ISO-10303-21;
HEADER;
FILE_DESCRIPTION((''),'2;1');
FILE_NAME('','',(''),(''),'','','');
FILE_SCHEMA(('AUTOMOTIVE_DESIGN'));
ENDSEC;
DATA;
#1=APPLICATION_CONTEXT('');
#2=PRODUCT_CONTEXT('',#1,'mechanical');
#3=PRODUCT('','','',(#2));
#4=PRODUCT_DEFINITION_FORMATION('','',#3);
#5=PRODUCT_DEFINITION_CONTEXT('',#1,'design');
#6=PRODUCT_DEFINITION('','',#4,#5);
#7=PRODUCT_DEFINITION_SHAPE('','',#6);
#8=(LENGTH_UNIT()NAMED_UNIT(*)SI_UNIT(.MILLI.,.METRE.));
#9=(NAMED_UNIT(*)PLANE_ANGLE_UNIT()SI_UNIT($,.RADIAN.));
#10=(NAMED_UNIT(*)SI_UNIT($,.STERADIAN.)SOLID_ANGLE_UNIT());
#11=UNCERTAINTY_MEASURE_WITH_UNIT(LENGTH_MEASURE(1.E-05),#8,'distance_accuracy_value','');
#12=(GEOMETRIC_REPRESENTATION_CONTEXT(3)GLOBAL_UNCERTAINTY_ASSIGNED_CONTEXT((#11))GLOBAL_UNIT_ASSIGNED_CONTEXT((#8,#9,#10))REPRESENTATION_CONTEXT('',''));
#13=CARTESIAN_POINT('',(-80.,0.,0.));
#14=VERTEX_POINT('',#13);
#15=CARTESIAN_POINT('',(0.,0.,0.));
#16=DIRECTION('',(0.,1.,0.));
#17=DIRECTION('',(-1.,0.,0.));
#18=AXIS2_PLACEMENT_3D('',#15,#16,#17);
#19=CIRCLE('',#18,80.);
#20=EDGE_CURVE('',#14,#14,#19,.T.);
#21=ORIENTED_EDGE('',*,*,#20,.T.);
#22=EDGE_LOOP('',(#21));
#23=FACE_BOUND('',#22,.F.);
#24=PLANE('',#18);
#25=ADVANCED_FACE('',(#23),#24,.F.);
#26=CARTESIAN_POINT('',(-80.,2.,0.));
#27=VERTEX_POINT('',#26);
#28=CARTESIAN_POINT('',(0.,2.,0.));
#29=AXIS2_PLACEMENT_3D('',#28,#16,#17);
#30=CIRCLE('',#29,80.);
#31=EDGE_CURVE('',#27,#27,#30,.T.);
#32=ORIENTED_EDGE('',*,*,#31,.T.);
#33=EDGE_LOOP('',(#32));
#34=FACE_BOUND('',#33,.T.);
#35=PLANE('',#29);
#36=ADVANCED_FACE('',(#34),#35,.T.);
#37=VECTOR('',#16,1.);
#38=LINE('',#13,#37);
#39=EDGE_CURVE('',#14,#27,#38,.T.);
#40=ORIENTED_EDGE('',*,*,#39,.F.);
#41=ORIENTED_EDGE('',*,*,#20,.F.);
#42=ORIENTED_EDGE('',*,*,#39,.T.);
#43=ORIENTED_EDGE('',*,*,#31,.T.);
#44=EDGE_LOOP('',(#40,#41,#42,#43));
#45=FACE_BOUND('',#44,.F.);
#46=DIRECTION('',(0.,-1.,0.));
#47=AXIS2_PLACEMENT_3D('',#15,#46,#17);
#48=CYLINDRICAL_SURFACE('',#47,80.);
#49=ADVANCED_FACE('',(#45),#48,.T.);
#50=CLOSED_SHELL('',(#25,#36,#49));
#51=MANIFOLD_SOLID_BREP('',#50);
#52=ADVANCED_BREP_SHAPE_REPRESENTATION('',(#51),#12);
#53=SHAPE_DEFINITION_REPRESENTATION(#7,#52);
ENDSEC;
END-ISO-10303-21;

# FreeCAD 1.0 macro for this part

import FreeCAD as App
import Part
import Sketcher
from FreeCAD import Vector

doc = App.newDocument("Part")
params = doc.addObject("Spreadsheet::Sheet", "Params")
for row, (alias, value) in enumerate([
    ("sketch1_diameter", "160 mm"),
    ("pad1_length", "2 mm"),
], start=1):
    params.set(f"A{row}", alias)
    params.set(f"B{row}", "=" + value)
    params.setAlias(f"B{row}", alias)

body = doc.addObject("PartDesign::Body", "Body")

sketch1 = body.newObject("Sketcher::SketchObject", "Sketch")
sketch1.AttachmentSupport = (doc.getObject("XZ_Plane"), [""])
sketch1.MapMode = "FlatFace"
sketch1.addGeometry(Part.Circle(Vector(0, 0, 0), Vector(0, 0, 1), 80), False)
sketch1.addConstraint([
    Sketcher.Constraint("Coincident", 0, 3, -1, 1),
    Sketcher.Constraint("Diameter", 0, 160.0),
])
sketch1.setExpression("Constraints[1]", "Params.sketch1_diameter")
pad1 = body.newObject("PartDesign::Pad", "Pad")
pad1.Profile = sketch1
pad1.setExpression("Length", "Params.pad1_length")
pad1.Reversed = True

doc.recompute()
